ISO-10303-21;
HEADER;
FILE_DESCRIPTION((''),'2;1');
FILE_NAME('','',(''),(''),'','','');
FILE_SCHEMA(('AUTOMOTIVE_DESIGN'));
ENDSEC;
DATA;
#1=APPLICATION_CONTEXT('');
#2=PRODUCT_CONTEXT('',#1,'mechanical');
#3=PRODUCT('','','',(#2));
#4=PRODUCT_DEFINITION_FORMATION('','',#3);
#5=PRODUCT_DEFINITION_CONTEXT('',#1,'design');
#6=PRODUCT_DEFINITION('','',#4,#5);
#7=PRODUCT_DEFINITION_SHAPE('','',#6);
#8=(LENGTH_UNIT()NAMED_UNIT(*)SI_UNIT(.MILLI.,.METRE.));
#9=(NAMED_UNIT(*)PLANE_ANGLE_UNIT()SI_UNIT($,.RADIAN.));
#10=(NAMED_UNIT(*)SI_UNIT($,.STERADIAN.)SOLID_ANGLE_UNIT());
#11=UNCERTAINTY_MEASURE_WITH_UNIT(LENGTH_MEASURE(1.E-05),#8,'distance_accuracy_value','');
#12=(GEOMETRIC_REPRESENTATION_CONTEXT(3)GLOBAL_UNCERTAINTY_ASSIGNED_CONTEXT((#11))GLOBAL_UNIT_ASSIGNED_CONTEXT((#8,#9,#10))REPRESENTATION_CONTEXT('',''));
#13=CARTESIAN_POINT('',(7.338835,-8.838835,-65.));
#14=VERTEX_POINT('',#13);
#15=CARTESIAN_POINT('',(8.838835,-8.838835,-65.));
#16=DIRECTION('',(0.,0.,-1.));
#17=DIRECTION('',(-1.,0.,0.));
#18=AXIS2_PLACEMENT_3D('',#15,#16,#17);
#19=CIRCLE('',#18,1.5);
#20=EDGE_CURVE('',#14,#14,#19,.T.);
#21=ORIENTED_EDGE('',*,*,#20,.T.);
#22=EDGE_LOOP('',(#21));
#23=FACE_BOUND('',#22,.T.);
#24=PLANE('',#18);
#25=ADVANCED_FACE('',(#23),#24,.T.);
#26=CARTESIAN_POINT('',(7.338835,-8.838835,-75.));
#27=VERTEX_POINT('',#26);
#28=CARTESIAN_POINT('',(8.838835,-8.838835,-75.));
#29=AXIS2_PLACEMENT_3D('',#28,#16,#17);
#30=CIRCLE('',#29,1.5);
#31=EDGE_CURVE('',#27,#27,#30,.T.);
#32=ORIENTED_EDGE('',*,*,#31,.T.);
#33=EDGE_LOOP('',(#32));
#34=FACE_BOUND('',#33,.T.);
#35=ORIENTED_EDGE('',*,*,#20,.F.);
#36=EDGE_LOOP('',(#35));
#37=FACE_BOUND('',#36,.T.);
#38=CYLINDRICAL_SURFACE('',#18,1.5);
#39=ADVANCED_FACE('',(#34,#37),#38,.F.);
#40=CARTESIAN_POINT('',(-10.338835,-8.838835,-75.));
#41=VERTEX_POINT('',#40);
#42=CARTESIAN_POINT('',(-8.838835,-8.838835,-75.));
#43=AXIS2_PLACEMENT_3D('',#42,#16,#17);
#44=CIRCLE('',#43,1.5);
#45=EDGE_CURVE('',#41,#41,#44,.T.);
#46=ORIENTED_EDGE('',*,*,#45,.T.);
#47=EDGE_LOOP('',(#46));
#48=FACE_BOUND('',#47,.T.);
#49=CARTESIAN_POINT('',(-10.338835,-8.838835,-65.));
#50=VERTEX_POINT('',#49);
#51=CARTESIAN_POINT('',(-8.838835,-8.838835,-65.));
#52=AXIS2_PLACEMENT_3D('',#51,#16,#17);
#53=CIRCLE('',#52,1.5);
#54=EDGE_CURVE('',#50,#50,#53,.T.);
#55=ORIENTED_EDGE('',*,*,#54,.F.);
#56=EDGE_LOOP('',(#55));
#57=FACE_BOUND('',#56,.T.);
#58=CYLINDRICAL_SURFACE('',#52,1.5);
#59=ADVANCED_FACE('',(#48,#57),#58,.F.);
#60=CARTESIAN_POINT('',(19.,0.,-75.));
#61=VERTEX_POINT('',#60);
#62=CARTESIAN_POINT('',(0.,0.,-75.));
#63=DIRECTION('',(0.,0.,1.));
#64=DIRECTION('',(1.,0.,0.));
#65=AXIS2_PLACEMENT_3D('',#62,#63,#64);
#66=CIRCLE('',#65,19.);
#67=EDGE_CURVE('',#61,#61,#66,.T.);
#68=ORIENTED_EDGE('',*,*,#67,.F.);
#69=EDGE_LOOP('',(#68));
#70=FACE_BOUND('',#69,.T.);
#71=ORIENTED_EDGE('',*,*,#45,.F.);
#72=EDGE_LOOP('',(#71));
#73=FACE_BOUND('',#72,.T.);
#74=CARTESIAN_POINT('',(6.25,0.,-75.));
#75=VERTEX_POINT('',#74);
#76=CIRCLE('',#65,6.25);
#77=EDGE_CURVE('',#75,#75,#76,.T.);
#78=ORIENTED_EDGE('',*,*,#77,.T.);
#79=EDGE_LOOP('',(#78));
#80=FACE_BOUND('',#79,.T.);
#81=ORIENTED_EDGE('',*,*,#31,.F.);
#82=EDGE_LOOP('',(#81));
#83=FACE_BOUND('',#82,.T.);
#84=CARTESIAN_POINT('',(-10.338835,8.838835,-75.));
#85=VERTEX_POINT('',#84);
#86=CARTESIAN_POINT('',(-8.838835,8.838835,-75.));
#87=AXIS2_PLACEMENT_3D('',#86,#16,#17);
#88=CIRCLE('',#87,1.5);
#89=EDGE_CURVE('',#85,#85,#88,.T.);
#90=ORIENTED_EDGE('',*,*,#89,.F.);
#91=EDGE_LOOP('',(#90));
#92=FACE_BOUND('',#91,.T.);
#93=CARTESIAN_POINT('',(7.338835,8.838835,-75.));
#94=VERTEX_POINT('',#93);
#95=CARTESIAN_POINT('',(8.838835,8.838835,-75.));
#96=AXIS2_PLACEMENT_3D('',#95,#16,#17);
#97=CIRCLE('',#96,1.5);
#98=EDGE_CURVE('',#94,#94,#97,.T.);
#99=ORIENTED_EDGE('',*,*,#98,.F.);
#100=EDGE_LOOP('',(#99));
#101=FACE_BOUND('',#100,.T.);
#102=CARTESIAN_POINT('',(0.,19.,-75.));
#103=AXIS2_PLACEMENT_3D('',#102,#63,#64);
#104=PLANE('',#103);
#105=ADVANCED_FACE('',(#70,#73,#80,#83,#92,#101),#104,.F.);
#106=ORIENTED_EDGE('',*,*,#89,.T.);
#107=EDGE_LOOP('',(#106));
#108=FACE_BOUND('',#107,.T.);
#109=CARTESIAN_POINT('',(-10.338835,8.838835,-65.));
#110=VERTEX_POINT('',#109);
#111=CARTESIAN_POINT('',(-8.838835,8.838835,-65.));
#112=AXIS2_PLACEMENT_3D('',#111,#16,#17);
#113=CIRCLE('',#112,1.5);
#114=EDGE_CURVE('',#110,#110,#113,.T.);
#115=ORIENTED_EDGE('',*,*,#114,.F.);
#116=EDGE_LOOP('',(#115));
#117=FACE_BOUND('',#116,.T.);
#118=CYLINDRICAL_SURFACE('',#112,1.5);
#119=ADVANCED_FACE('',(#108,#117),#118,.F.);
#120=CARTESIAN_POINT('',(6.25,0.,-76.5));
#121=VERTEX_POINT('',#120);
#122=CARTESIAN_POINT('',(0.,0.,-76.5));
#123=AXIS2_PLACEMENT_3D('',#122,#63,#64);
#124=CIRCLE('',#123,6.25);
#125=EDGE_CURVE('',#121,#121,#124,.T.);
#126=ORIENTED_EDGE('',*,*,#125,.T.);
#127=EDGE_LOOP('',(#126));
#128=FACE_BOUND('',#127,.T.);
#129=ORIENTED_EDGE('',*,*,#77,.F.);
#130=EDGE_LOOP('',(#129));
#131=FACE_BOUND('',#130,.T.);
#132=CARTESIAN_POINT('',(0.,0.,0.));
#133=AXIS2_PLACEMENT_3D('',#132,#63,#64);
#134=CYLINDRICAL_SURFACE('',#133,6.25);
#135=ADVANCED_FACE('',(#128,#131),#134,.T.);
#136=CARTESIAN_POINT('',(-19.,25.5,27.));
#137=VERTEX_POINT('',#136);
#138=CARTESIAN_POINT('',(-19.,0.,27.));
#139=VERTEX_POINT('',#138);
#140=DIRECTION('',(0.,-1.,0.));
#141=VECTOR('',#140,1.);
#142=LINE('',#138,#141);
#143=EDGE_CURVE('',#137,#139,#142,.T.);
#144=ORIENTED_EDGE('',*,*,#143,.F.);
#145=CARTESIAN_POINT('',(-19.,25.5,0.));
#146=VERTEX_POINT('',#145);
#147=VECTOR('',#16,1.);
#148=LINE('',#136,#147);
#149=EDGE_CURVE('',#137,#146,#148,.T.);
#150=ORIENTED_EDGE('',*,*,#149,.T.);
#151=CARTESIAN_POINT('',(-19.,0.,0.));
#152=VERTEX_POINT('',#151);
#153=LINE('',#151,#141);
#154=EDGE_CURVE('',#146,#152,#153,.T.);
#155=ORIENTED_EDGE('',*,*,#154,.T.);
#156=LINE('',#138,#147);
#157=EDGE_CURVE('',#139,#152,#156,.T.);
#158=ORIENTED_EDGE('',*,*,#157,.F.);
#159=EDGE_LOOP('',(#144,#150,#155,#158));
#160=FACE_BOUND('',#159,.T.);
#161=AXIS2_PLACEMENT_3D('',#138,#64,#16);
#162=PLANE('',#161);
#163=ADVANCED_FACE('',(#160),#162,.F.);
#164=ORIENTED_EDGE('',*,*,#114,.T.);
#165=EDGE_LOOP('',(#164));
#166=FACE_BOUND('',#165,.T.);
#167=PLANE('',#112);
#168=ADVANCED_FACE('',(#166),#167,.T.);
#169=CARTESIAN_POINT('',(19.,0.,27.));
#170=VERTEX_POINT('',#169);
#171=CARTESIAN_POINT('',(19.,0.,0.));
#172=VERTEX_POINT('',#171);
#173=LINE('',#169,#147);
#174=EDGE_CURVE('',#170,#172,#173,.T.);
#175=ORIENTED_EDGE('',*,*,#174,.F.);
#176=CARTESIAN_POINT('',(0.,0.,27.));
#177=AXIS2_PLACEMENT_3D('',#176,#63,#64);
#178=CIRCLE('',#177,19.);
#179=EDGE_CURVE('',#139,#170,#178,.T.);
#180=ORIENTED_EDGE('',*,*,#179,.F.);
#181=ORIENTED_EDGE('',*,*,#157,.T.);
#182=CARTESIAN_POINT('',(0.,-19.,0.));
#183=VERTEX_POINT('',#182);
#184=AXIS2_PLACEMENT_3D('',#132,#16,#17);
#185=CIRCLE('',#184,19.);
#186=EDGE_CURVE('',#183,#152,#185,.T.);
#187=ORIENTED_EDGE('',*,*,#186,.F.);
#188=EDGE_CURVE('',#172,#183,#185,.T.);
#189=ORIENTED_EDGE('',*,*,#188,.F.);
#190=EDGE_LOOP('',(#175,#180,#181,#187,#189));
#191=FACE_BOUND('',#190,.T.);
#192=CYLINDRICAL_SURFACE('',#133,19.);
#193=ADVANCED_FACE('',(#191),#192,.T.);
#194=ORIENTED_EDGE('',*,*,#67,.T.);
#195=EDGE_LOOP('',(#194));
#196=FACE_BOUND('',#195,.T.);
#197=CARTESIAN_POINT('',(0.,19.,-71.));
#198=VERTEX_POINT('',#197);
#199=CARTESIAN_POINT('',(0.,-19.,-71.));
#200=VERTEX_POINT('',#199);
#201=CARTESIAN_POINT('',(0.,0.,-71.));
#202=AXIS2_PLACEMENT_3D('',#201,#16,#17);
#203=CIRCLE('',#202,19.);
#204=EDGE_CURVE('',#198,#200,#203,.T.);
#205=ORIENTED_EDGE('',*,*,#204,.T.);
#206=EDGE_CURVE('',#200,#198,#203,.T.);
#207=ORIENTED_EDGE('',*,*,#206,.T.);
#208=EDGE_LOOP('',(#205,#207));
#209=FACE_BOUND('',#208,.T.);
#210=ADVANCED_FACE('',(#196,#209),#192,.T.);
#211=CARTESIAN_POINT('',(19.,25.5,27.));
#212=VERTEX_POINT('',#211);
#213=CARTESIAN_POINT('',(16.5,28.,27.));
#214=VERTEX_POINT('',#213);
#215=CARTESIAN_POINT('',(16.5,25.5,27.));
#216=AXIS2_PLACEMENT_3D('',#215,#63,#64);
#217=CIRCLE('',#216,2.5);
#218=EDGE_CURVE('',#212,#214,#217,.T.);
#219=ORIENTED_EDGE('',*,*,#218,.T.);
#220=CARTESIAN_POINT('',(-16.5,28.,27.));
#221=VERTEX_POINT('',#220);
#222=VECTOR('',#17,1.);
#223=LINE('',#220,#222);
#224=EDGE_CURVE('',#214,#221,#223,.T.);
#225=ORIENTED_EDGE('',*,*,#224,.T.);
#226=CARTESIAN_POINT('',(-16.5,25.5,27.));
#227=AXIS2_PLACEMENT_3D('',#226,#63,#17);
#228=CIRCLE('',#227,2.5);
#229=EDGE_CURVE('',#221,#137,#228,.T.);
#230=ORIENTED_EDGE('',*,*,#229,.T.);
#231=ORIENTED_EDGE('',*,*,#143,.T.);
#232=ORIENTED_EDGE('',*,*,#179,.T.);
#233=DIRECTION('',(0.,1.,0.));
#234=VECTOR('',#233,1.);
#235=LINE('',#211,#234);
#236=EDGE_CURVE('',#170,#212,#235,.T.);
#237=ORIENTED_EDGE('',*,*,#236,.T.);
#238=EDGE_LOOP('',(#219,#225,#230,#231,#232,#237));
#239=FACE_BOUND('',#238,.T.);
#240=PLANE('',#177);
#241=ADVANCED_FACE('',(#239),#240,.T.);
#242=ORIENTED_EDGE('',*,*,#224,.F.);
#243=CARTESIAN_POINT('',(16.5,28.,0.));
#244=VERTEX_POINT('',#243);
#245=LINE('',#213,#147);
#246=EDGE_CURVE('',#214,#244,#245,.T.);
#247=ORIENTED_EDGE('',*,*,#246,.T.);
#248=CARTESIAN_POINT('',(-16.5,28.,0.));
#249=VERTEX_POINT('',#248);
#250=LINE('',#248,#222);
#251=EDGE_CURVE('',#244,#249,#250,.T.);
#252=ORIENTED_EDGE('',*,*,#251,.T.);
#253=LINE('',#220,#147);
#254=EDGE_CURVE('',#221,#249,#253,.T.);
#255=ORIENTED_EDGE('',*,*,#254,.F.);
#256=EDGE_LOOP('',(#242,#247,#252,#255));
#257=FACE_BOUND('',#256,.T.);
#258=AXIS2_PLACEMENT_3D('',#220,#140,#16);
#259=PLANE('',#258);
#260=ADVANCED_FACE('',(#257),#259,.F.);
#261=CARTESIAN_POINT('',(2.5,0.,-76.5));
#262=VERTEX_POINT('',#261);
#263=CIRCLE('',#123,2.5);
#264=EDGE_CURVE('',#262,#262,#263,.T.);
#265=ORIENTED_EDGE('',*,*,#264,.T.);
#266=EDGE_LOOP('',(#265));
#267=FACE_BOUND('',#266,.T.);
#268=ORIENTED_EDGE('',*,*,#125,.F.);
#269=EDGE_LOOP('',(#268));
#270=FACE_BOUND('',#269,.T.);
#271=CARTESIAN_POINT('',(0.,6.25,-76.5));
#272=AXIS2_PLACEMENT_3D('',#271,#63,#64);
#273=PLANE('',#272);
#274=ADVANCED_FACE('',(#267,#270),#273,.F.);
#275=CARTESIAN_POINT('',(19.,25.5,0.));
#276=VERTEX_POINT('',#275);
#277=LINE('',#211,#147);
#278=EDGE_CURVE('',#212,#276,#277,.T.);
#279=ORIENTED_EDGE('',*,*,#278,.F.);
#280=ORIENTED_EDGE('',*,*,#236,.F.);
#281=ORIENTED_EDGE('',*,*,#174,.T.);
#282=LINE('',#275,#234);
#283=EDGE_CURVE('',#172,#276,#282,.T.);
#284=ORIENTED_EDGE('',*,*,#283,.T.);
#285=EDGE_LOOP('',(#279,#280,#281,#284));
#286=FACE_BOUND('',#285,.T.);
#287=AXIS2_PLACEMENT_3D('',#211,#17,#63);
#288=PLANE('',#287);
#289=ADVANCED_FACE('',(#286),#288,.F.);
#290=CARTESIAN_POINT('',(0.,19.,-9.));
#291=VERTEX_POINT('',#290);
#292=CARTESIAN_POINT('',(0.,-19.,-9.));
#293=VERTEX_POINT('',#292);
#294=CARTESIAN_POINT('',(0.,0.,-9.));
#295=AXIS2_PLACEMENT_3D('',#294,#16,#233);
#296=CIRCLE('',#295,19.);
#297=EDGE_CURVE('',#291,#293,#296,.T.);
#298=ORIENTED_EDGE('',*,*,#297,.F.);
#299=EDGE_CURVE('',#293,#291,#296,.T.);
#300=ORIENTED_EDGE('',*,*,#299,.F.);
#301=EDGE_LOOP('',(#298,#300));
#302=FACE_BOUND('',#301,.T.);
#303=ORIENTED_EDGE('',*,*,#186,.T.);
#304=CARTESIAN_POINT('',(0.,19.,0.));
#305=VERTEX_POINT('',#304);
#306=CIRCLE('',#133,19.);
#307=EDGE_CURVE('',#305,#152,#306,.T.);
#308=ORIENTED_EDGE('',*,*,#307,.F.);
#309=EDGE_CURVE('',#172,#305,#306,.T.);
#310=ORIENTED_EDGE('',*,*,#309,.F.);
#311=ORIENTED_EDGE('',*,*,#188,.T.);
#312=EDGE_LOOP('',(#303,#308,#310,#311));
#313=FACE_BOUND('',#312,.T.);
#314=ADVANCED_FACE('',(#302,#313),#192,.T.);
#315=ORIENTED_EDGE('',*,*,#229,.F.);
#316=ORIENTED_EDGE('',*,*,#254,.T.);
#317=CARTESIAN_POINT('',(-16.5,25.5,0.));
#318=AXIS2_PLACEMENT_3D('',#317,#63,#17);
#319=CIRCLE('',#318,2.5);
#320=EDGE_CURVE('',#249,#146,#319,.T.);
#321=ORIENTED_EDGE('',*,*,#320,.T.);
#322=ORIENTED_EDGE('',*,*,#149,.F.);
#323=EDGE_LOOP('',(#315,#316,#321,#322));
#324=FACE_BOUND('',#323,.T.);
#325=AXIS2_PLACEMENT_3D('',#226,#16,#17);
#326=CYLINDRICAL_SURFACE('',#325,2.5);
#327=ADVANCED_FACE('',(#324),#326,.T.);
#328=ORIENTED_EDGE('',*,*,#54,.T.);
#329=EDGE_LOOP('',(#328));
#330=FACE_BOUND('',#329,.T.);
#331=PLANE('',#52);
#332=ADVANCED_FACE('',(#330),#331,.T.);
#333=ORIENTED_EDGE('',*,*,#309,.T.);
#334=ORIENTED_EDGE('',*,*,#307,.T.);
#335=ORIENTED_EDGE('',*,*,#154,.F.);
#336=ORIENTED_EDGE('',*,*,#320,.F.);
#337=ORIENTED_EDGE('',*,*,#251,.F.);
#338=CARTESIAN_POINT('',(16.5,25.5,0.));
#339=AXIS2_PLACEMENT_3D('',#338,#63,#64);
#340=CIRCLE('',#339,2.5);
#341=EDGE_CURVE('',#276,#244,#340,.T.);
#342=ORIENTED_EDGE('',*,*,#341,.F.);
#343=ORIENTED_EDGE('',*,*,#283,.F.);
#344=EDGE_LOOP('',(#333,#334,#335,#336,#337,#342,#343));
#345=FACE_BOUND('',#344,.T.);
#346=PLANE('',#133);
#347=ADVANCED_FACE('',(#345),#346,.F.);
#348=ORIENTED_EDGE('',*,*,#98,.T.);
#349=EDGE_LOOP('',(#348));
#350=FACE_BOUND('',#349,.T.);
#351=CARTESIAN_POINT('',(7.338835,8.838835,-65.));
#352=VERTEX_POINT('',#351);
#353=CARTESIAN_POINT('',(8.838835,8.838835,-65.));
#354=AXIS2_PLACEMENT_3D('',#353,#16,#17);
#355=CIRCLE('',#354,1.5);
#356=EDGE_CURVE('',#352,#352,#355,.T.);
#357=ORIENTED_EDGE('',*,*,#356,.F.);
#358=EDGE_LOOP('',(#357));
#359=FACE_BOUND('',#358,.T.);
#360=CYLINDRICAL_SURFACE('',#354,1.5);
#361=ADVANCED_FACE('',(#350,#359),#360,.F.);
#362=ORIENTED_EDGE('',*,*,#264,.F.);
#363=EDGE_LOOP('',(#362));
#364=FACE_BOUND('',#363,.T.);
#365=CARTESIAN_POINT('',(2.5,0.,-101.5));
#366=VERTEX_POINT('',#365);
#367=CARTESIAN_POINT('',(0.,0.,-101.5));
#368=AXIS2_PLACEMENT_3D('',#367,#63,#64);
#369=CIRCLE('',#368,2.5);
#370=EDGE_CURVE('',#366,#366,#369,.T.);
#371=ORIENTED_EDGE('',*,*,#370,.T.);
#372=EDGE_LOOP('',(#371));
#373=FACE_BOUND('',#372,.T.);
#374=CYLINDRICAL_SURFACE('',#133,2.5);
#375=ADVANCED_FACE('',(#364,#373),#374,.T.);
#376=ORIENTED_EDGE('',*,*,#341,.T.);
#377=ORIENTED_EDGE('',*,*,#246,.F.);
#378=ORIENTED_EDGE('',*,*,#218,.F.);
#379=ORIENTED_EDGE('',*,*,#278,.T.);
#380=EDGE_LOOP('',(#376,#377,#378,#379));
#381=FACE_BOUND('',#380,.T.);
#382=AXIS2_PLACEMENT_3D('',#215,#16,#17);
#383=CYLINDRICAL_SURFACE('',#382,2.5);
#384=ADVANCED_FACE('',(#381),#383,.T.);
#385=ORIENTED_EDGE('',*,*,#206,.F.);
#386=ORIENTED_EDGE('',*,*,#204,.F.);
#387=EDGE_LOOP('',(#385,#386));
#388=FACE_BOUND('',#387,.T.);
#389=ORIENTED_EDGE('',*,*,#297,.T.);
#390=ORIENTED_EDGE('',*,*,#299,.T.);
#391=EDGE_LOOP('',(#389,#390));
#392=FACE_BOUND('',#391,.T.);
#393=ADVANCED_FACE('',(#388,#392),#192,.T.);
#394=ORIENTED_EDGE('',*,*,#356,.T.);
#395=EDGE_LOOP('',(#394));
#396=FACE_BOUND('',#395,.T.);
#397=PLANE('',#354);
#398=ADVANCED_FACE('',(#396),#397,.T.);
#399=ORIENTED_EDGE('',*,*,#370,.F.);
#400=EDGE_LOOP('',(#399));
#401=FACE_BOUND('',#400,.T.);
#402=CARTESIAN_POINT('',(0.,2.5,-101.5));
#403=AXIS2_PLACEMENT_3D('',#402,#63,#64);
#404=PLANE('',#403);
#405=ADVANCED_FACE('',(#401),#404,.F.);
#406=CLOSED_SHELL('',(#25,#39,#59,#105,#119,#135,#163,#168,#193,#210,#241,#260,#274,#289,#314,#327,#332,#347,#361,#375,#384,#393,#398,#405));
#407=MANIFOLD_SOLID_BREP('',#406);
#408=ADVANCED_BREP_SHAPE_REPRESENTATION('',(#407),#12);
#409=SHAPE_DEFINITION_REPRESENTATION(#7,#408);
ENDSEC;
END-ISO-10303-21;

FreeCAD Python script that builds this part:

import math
import FreeCAD as App
import Part
import Sketcher


def add_polygon(sketch, points):
    """Adds a closed chain of lines whose ends are joined by coincident constraints."""
    first, n = sketch.GeometryCount, len(points)
    for a, b in zip(points, points[1:] + points[:1]):
        sketch.addGeometry(Part.LineSegment(App.Vector(*a, 0), App.Vector(*b, 0)), False)
    for i in range(n):
        sketch.addConstraint(Sketcher.Constraint("Coincident", first + i, 2, first + (i + 1) % n, 1))

doc = App.newDocument("Part")
body = doc.addObject("PartDesign::Body", "Body")

# Sketch on YZ plane
sketch1 = doc.addObject("Sketcher::SketchObject", "Sketch")
body.addObject(sketch1)
sketch1.AttachmentSupport = (doc.YZ_Plane, [""])
sketch1.MapMode = "FlatFace"
add_polygon(sketch1, [(19, 0), (0, 0), (0, -101.5), (2.5, -101.5), (2.5, -76.5), (6.2, -76.5), (6.2, -75), (19, -75)])  # lines 0-7
sketch1.addConstraint([
    Sketcher.Constraint("Horizontal", 0),
    Sketcher.Constraint("Vertical", 1),
    Sketcher.Constraint("Horizontal", 2),
    Sketcher.Constraint("Vertical", 3),
    Sketcher.Constraint("Horizontal", 4),
    Sketcher.Constraint("Vertical", 5),
    Sketcher.Constraint("Horizontal", 6),
    Sketcher.Constraint("Vertical", 7),
    Sketcher.Constraint("Coincident", 0, 2, -1, 1),
    Sketcher.Constraint("DistanceX", 0, 2, 0, 1, 19.0),
    Sketcher.Constraint("DistanceY", 3, 1, 3, 2, 25.0),
    Sketcher.Constraint("DistanceY", 7, 1, 7, 2, 75.0),
    Sketcher.Constraint("DistanceX", 2, 1, 2, 2, 2.5),
    Sketcher.Constraint("DistanceY", 1, 2, 1, 1, 101.5),
    Sketcher.Constraint("DistanceX", 4, 1, 4, 2, 3.75),
])
revolution = doc.addObject("PartDesign::Revolution", "Revolution")
body.addObject(revolution)
revolution.Profile = sketch1
revolution.ReferenceAxis = (sketch1, ["V_Axis"])
revolution.Angle = 360

# Sketch on XY plane
sketch2 = doc.addObject("Sketcher::SketchObject", "Sketch001")
body.addObject(sketch2)
sketch2.AttachmentSupport = (doc.XY_Plane, [""])
sketch2.MapMode = "FlatFace"
sketch2.addGeometry([
    Part.LineSegment(App.Vector(-19, 25.5, 0), App.Vector(-19, 0, 0)),  # 0
    Part.ArcOfCircle(Part.Circle(App.Vector(0, 0, 0), App.Vector(0, 0, 1), 19), math.radians(180), math.radians(360)),  # 1
    Part.LineSegment(App.Vector(19, 0, 0), App.Vector(19, 25.5, 0)),  # 2
    Part.ArcOfCircle(Part.Circle(App.Vector(16.5, 25.5, 0), App.Vector(0, 0, 1), 2.5), math.radians(0), math.radians(90)),  # 3
    Part.LineSegment(App.Vector(16.5, 28, 0), App.Vector(-16.5, 28, 0)),  # 4
    Part.ArcOfCircle(Part.Circle(App.Vector(-16.5, 25.5, 0), App.Vector(0, 0, 1), 2.5), math.radians(90), math.radians(180)),  # 5
], False)
sketch2.addConstraint([
    Sketcher.Constraint("Tangent", 0, 2, 1, 1),
    Sketcher.Constraint("Tangent", 1, 2, 2, 1),
    Sketcher.Constraint("Tangent", 2, 2, 3, 1),
    Sketcher.Constraint("Tangent", 3, 2, 4, 1),
    Sketcher.Constraint("Tangent", 4, 2, 5, 1),
    Sketcher.Constraint("Tangent", 5, 2, 0, 1),
    Sketcher.Constraint("Vertical", 0),
    Sketcher.Constraint("Vertical", 2),
    Sketcher.Constraint("Horizontal", 4),
    Sketcher.Constraint("Coincident", 1, 3, -1, 1),
    Sketcher.Constraint("Equal", 3, 5),
    Sketcher.Constraint("Radius", 1, 19.0),
    Sketcher.Constraint("Radius", 3, 2.5),
    Sketcher.Constraint("DistanceY", 0, 2, 0, 1, 25.5),
])
pad1 = doc.addObject("PartDesign::Pad", "Pad")
body.addObject(pad1)
pad1.Profile = sketch2
pad1.Length = 27

# Sketch on XY plane
sketch3 = doc.addObject("Sketcher::SketchObject", "Sketch002")
body.addObject(sketch3)
sketch3.AttachmentSupport = (doc.XY_Plane, [""])
sketch3.MapMode = "FlatFace"
sketch3.AttachmentOffset = App.Placement(App.Vector(0, 0, -75), App.Rotation())
sketch3.addGeometry([
    Part.Circle(App.Vector(8.8, 8.8, 0), App.Vector(0, 0, 1), 1.5),
    Part.Circle(App.Vector(-8.8, 8.8, 0), App.Vector(0, 0, 1), 1.5),
    Part.Circle(App.Vector(-8.8, -8.8, 0), App.Vector(0, 0, 1), 1.5),
    Part.Circle(App.Vector(8.8, -8.8, 0), App.Vector(0, 0, 1), 1.5),
], False)
sketch3.addConstraint([
    Sketcher.Constraint("Equal", 0, 1),
    Sketcher.Constraint("Equal", 1, 2),
    Sketcher.Constraint("Equal", 2, 3),
    Sketcher.Constraint("Symmetric", 0, 3, 2, 3, -1, 1),
    Sketcher.Constraint("Symmetric", 1, 3, 3, 3, -1, 1),
    Sketcher.Constraint("Symmetric", 0, 3, 1, 3, -2),
    Sketcher.Constraint("Diameter", 0, 3.0),
    Sketcher.Constraint("DistanceX", 1, 3, 0, 3, 17.67767),
    Sketcher.Constraint("DistanceY", 2, 3, 1, 3, 17.67767),
])
pocket1 = doc.addObject("PartDesign::Pocket", "Pocket")
body.addObject(pocket1)
pocket1.Profile = sketch3
pocket1.Length = 10
pocket1.Reversed = True

doc.recompute()
